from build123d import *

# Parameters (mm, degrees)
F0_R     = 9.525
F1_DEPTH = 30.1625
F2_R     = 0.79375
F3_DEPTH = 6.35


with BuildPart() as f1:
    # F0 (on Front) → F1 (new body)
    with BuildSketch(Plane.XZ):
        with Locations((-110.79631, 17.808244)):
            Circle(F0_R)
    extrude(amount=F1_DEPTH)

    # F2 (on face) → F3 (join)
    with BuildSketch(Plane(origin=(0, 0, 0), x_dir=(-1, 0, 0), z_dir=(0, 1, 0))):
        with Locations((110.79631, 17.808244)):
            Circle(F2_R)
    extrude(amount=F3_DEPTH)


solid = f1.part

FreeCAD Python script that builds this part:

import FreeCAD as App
import Part
import Sketcher

V = App.Vector
Q = App.Units.Quantity

doc = App.newDocument("Part")
body = doc.addObject("PartDesign::Body", "Body")

sketch1 = doc.addObject("Sketcher::SketchObject", "Sketch")
body.addObject(sketch1)
sketch1.AttachmentSupport = (doc.XZ_Plane, [""])
sketch1.MapMode = "FlatFace"
sketch1.addGeometry(Part.Circle(V(-110.79631, 17.808244, 0), V(0, 0, 1), 9.525), False)
sketch1.addConstraint([
    Sketcher.Constraint("Diameter", 0, Q("0.75 in")),
    Sketcher.Constraint("DistanceX", 0, 3, -1, 1, 110.79631),
    Sketcher.Constraint("DistanceY", -1, 1, 0, 3, 17.808244),
])
pad1 = doc.addObject("PartDesign::Pad", "Pad")
body.addObject(pad1)
pad1.Profile = sketch1
pad1.Length = Q("1.1875 in")

sketch2 = doc.addObject("Sketcher::SketchObject", "Sketch001")
body.addObject(sketch2)
sketch2.AttachmentSupport = (doc.XZ_Plane, [""])
sketch2.MapMode = "FlatFace"
sketch2.addGeometry(Part.Circle(V(-110.79631, 17.808244, 0), V(0, 0, 1), 0.79375), False)
sketch2.addConstraint([
    Sketcher.Constraint("Diameter", 0, Q("0.0625 in")),
    Sketcher.Constraint("DistanceX", 0, 3, -1, 1, 110.79631),
    Sketcher.Constraint("DistanceY", -1, 1, 0, 3, 17.808244),
])
pad2 = doc.addObject("PartDesign::Pad", "Pad001")
body.addObject(pad2)
pad2.Profile = sketch2
pad2.Length = Q("0.25 in")
pad2.Reversed = True

doc.recompute()
